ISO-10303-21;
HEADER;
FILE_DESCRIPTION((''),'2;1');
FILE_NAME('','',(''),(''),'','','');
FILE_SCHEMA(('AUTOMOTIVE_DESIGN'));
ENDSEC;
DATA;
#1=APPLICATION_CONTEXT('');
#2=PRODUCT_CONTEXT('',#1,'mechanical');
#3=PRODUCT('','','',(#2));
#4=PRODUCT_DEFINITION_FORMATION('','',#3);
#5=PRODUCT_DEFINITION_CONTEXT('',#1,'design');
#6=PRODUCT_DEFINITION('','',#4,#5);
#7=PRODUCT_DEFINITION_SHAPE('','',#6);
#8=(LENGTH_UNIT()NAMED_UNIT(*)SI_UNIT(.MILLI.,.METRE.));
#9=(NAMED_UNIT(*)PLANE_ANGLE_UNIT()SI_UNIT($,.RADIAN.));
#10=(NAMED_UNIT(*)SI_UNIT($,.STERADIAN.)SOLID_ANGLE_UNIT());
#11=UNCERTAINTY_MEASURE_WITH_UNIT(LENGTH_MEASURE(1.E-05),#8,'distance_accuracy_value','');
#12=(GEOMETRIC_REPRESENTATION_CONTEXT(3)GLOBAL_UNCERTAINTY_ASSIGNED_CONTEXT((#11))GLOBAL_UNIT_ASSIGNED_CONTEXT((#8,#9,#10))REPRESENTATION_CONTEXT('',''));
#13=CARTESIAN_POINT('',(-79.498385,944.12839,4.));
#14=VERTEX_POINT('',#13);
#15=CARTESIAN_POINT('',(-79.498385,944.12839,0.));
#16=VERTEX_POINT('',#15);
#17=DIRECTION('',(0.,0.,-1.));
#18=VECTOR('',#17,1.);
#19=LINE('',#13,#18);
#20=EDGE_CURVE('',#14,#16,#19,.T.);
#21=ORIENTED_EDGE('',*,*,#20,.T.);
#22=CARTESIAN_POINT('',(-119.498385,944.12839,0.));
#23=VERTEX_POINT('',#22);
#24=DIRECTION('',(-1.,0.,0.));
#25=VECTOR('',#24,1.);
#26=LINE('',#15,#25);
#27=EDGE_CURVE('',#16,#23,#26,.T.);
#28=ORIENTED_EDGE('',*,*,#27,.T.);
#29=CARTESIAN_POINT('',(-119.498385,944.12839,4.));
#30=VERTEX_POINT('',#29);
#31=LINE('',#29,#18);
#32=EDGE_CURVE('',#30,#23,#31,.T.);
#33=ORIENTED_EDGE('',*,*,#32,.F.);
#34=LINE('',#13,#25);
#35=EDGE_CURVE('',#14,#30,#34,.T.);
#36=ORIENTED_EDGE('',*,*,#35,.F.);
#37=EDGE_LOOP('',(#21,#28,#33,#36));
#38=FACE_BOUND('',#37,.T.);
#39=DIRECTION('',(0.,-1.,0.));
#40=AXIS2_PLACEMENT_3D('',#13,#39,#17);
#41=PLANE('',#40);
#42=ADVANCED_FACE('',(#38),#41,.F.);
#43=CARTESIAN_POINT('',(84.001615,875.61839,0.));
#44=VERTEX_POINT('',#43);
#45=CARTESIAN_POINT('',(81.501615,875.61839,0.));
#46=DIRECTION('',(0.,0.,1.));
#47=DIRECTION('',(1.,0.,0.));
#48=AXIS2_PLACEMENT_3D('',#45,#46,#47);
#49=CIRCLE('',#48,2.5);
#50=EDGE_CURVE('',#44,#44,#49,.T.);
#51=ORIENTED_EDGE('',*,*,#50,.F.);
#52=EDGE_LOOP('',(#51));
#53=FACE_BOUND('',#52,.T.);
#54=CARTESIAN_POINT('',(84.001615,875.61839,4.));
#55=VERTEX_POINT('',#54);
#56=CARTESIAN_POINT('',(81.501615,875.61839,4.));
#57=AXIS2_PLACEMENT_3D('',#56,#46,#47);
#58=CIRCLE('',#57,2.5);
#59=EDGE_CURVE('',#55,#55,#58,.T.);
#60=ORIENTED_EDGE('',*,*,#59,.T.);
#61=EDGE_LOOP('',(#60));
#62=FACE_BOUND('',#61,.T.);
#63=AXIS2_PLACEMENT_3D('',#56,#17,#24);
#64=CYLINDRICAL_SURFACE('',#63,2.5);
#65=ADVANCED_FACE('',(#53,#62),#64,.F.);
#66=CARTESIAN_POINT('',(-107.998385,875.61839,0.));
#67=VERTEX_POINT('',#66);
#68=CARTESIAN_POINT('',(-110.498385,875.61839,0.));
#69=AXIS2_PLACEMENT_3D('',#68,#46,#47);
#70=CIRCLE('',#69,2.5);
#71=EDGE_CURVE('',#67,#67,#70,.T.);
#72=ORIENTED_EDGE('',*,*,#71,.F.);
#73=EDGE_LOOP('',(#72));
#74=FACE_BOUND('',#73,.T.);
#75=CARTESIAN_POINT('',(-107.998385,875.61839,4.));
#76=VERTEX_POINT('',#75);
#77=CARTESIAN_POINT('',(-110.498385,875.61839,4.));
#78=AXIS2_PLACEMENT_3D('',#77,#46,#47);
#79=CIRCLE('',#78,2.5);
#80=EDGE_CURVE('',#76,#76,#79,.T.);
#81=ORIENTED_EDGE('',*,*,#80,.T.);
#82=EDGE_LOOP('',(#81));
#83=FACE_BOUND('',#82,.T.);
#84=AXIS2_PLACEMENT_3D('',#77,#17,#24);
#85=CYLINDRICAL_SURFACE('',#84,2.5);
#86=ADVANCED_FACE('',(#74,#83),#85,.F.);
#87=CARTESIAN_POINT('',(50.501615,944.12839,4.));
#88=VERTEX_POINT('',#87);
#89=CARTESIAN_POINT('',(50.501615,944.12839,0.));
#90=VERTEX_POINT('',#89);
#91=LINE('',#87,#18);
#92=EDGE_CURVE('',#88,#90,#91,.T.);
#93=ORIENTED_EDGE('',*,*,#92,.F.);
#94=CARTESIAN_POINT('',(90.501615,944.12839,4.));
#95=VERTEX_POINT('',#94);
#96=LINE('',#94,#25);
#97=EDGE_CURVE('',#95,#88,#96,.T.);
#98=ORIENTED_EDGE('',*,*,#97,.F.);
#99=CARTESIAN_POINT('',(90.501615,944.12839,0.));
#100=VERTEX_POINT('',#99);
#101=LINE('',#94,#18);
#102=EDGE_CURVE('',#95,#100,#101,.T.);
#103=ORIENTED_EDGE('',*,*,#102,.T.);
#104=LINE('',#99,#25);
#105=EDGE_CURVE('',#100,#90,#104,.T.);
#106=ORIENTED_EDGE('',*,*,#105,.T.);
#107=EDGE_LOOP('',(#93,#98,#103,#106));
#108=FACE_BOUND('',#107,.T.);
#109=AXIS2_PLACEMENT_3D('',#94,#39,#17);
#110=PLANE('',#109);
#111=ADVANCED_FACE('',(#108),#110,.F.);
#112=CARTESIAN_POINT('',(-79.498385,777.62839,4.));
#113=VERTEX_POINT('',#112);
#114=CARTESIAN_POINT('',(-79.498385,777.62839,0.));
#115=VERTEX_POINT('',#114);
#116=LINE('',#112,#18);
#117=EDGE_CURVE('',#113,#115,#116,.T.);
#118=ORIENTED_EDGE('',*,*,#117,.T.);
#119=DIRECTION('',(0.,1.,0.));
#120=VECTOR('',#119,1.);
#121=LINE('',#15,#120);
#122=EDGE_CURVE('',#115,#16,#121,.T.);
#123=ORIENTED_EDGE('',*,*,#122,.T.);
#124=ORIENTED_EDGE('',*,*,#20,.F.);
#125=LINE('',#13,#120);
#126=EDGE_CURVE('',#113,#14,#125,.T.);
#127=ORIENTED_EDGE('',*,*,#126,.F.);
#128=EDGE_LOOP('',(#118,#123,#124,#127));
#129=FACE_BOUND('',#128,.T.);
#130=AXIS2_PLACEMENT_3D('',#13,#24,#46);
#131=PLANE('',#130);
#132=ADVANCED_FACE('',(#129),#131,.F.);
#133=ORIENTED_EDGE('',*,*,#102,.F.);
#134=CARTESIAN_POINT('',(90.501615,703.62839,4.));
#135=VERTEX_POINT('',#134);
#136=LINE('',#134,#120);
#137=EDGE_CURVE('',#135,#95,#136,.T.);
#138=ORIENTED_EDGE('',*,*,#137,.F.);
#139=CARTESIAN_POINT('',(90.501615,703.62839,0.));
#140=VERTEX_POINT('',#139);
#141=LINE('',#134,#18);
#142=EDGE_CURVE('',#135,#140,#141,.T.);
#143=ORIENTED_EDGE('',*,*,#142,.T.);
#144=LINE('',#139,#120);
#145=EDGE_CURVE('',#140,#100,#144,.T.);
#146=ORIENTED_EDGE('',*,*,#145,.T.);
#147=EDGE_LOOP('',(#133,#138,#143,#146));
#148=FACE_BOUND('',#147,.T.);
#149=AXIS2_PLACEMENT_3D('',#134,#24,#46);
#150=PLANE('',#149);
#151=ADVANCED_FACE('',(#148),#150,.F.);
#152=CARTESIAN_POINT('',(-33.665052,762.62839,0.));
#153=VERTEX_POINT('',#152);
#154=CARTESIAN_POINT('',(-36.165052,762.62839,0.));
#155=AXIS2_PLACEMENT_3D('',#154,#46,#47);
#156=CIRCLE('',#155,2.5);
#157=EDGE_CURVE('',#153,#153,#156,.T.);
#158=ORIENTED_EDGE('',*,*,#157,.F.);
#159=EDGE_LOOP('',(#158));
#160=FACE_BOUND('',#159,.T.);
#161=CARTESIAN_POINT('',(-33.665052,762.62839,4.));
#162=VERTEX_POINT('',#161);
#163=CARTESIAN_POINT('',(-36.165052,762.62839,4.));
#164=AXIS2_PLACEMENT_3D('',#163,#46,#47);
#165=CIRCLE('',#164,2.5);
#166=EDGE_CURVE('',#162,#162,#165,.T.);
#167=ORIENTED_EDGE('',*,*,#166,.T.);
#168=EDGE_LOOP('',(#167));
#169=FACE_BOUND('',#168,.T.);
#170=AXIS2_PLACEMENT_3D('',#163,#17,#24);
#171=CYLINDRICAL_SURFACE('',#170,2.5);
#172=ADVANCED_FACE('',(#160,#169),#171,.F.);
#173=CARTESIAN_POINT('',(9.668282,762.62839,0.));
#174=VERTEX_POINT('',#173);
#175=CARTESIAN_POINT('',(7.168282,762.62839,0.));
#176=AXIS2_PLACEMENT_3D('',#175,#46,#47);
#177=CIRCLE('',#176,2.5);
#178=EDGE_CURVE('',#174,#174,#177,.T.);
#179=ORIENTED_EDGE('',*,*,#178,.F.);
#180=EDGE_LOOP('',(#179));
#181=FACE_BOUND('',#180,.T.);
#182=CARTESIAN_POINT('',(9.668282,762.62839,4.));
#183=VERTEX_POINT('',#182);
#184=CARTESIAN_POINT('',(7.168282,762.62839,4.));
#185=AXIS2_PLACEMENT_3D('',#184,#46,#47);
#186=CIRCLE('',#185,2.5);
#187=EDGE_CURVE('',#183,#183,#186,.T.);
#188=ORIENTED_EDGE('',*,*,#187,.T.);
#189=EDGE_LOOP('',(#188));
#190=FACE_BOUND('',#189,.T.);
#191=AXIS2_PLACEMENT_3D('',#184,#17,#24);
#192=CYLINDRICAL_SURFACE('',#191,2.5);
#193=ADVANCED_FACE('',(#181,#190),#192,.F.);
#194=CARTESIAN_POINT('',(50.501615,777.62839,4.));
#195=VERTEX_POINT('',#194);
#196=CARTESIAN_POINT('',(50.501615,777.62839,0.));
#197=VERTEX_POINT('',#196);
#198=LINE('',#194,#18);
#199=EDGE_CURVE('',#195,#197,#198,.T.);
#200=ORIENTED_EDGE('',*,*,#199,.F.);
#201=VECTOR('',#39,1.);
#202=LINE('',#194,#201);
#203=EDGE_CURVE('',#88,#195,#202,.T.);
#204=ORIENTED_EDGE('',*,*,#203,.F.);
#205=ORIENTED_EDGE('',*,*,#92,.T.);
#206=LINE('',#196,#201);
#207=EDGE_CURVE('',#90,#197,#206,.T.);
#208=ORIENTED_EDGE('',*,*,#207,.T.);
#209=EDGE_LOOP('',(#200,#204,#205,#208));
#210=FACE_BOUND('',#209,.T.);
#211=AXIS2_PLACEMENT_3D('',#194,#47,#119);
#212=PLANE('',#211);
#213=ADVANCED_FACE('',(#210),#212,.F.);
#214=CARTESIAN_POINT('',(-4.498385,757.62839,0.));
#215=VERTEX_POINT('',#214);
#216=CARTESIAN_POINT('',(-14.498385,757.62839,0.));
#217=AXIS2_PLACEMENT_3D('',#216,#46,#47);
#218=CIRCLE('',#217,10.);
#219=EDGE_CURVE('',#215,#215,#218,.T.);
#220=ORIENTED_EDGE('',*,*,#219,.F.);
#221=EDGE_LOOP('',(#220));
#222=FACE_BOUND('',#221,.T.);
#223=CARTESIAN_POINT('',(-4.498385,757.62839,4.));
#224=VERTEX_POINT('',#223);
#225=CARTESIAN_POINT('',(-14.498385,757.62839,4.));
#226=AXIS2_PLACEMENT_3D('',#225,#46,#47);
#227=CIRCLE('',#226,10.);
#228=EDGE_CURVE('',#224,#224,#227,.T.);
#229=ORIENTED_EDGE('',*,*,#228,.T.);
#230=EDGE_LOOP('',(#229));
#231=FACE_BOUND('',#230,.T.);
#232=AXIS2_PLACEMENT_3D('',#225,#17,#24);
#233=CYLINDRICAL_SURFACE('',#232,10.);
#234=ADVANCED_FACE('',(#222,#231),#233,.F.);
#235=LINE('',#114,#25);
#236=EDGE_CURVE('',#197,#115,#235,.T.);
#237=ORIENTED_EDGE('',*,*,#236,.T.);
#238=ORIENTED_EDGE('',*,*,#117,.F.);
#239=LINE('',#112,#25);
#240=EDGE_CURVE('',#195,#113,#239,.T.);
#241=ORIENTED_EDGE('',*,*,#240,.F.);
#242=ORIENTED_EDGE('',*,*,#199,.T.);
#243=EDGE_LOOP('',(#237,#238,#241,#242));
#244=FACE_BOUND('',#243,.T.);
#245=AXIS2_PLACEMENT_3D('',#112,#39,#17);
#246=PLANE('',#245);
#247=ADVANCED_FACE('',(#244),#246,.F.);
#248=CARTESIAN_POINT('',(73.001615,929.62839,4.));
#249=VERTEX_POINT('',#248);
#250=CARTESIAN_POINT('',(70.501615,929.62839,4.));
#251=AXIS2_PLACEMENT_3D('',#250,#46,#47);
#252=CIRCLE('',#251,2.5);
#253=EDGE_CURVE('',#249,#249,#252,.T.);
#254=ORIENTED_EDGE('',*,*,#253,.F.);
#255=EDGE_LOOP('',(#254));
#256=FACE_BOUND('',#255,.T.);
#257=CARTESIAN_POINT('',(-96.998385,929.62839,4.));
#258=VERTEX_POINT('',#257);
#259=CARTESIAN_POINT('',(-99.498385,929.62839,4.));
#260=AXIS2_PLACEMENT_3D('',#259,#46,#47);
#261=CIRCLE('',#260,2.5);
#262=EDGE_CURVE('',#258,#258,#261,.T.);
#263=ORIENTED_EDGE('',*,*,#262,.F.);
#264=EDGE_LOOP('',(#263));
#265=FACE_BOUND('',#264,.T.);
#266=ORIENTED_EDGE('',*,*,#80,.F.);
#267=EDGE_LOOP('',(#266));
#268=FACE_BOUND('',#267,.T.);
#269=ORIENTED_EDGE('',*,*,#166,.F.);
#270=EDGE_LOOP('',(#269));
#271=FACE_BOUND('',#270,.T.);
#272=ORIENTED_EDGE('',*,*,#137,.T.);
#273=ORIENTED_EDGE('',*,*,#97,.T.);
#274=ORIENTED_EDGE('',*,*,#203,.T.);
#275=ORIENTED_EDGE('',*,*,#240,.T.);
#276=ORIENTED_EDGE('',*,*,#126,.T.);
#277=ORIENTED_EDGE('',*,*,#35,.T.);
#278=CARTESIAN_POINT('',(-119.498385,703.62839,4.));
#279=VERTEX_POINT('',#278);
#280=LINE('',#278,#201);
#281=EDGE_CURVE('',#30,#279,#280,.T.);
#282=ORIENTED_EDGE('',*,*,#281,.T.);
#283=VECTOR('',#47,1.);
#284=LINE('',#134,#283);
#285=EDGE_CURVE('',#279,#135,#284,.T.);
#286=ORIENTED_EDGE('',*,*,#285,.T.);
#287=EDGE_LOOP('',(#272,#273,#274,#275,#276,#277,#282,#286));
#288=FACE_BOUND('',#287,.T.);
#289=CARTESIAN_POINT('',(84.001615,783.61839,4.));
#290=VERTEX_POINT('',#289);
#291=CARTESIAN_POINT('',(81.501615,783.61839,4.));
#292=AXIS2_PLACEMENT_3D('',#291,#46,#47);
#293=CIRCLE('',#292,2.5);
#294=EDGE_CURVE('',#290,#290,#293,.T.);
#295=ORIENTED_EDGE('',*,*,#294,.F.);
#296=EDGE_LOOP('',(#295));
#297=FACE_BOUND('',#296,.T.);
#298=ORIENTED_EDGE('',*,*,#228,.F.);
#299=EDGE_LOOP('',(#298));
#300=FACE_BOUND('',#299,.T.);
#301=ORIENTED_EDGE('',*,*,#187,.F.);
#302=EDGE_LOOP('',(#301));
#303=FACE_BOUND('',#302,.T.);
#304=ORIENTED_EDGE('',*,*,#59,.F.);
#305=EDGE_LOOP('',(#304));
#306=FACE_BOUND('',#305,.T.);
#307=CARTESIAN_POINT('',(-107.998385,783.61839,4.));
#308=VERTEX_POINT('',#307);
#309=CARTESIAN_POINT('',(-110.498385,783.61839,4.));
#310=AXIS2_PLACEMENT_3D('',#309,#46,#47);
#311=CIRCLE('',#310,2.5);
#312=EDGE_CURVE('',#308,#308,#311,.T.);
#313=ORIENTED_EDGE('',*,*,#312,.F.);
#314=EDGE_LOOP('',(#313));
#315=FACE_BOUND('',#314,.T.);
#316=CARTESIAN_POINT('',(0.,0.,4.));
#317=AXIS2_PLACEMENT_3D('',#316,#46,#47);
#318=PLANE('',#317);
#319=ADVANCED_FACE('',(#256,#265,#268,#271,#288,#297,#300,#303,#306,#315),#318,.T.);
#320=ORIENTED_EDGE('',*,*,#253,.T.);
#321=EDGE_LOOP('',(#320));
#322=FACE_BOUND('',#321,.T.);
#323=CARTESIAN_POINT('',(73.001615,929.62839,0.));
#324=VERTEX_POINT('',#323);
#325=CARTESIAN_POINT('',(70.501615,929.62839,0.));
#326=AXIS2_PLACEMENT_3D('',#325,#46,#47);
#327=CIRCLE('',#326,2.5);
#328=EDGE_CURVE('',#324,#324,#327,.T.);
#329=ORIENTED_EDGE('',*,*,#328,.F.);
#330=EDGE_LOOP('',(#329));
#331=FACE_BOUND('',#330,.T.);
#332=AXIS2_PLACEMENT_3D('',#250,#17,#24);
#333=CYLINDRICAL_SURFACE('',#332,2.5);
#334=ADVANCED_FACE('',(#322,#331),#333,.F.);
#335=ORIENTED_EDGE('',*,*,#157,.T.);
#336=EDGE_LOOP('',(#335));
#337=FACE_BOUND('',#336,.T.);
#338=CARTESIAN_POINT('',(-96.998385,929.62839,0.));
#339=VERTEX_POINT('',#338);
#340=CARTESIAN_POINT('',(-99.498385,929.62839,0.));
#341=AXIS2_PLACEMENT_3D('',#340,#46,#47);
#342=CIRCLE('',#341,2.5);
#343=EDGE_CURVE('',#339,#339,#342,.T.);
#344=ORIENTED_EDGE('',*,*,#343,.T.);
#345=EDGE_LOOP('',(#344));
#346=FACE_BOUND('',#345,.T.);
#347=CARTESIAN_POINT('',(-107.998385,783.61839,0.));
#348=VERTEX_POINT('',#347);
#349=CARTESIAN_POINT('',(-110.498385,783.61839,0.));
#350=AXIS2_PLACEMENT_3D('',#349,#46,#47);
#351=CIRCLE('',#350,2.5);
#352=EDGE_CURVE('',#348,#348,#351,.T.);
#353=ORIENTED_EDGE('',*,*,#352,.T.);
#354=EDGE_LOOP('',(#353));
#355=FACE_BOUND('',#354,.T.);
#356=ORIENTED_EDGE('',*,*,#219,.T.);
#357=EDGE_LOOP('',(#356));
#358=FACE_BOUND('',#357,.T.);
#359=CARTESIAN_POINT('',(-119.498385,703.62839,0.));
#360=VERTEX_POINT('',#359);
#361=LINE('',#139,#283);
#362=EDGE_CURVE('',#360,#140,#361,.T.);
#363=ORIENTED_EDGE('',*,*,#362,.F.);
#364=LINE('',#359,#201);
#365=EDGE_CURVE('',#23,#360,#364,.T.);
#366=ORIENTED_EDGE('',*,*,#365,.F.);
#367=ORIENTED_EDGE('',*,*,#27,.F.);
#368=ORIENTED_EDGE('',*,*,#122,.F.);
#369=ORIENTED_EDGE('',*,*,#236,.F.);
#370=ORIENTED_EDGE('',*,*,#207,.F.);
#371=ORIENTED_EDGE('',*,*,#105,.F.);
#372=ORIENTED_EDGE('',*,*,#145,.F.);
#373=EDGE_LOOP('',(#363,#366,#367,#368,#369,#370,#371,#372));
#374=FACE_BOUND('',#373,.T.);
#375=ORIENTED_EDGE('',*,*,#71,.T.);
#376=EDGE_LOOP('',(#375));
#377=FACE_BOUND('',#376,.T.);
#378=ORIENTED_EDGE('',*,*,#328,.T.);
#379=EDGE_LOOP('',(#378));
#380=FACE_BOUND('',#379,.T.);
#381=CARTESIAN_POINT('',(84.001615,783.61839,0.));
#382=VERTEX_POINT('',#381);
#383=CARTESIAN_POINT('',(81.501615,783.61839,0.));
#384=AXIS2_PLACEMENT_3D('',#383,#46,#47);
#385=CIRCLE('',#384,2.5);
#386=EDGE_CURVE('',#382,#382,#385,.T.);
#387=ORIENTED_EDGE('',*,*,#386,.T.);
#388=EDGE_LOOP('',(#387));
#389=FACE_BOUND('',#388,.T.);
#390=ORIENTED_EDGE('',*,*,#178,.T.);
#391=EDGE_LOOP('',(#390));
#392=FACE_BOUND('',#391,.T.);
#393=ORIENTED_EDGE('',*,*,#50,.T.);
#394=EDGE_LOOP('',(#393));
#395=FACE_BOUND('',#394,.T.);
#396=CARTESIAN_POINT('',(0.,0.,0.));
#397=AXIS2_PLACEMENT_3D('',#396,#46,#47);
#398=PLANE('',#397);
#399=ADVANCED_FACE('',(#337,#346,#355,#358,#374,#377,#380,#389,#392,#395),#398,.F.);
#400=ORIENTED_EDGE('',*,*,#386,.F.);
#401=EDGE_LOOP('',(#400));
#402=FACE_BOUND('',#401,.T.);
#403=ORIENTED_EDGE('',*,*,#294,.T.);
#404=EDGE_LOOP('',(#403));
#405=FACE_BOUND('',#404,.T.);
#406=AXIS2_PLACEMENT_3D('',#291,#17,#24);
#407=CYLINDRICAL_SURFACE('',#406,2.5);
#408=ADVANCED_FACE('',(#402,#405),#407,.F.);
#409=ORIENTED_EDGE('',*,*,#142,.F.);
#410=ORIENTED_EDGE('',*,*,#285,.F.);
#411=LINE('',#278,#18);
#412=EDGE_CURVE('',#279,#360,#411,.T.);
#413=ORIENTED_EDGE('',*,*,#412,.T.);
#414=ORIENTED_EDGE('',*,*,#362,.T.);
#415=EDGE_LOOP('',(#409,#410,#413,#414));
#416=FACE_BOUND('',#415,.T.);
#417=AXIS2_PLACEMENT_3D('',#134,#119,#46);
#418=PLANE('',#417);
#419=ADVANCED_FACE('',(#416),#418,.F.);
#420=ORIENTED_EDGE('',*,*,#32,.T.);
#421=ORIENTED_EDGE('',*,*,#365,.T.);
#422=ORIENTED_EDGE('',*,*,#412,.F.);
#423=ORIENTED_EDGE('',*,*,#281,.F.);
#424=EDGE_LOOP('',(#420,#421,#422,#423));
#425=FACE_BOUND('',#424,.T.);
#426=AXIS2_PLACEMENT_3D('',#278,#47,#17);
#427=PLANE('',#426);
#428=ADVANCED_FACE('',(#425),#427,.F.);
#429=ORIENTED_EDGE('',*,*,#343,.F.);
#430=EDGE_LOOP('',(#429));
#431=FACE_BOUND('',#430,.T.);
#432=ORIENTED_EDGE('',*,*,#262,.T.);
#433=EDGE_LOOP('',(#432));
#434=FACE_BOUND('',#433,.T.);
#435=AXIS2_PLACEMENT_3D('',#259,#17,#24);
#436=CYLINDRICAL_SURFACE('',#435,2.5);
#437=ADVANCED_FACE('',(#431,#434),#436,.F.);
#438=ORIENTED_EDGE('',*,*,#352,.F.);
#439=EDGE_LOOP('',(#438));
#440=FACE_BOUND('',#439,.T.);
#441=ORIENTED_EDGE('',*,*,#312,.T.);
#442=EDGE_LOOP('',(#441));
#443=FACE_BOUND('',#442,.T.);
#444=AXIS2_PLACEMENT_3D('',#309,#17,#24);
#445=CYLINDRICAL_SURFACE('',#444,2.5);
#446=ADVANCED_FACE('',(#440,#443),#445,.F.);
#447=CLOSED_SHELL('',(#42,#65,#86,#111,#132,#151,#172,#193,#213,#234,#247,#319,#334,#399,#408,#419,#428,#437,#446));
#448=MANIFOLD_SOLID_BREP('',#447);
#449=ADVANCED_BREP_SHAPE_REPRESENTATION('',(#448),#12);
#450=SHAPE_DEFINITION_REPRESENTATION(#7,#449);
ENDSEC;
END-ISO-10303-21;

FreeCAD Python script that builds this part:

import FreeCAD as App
import Part
import Sketcher
Q = App.Units.Quantity


def add_polygon(sketch, points):
    """Adds a closed chain of lines whose ends are joined by coincident constraints."""
    first, n = sketch.GeometryCount, len(points)
    for a, b in zip(points, points[1:] + points[:1]):
        sketch.addGeometry(Part.LineSegment(App.Vector(*a, 0), App.Vector(*b, 0)), False)
    for i in range(n):
        sketch.addConstraint(Sketcher.Constraint("Coincident", first + i, 2, first + (i + 1) % n, 1))

doc = App.newDocument("Part")
body = doc.addObject("PartDesign::Body", "Body")

# Sketch on XY plane
sketch1 = body.newObject("Sketcher::SketchObject", "Sketch")
sketch1.AttachmentSupport = (doc.getObject("XY_Plane"), [""])
sketch1.MapMode = "FlatFace"
add_polygon(sketch1, [(-79.5, 777.6), (-79.5, 944.1), (-119.5, 944.1), (-119.5, 703.6), (90.5, 703.6), (90.5, 944.1), (50.5, 944.1), (50.5, 777.6)])  # lines 0-7
sketch1.addGeometry(Part.Circle(App.Vector(81.5, 783.6, 0), App.Vector(0, 0, 1), 2.5), False)  # 8
sketch1.addGeometry(Part.Circle(App.Vector(-14.5, 757.6, 0), App.Vector(0, 0, 1), 10), False)  # 9
sketch1.addGeometry(Part.Circle(App.Vector(7.2, 762.6, 0), App.Vector(0, 0, 1), 2.5), False)  # 10
sketch1.addGeometry(Part.Circle(App.Vector(-36.2, 762.6, 0), App.Vector(0, 0, 1), 2.5), False)  # 11
sketch1.addGeometry(Part.Circle(App.Vector(-110.5, 783.6, 0), App.Vector(0, 0, 1), 2.5), False)  # 12
sketch1.addGeometry(Part.Circle(App.Vector(81.5, 875.6, 0), App.Vector(0, 0, 1), 2.5), False)  # 13
sketch1.addGeometry(Part.Circle(App.Vector(70.5, 929.6, 0), App.Vector(0, 0, 1), 2.5), False)  # 14
sketch1.addGeometry(Part.Circle(App.Vector(-110.5, 875.6, 0), App.Vector(0, 0, 1), 2.5), False)  # 15
sketch1.addGeometry(Part.Circle(App.Vector(-99.5, 929.6, 0), App.Vector(0, 0, 1), 2.5), False)  # 16
sketch1.addConstraint([
    Sketcher.Constraint("Vertical", 0),
    Sketcher.Constraint("Horizontal", 1),
    Sketcher.Constraint("Vertical", 2),
    Sketcher.Constraint("Horizontal", 3),
    Sketcher.Constraint("Vertical", 4),
    Sketcher.Constraint("Horizontal", 5),
    Sketcher.Constraint("Vertical", 6),
    Sketcher.Constraint("Horizontal", 7),
    Sketcher.Constraint("Equal", 8, 10),
    Sketcher.Constraint("Equal", 10, 11),
    Sketcher.Constraint("Equal", 11, 12),
    Sketcher.Constraint("Equal", 12, 13),
    Sketcher.Constraint("Equal", 13, 14),
    Sketcher.Constraint("Equal", 14, 15),
    Sketcher.Constraint("Equal", 15, 16),
    Sketcher.Constraint("Horizontal", 10, 3, 11, 3),
    Sketcher.Constraint("Horizontal", 8, 3, 12, 3),
    Sketcher.Constraint("Horizontal", 13, 3, 15, 3),
    Sketcher.Constraint("Horizontal", 14, 3, 16, 3),
    Sketcher.Constraint("Horizontal", 1, 2, 4, 2),
    Sketcher.Constraint("Vertical", 8, 3, 13, 3),
    Sketcher.Constraint("Vertical", 12, 3, 15, 3),
    Sketcher.Constraint("Equal", 1, 5),
    Sketcher.Constraint("Diameter", 8, Q("5 mm")),
    Sketcher.Constraint("Diameter", 9, Q("20 mm")),
    Sketcher.Constraint("DistanceX", 1, 2, 1, 1, Q("40 mm")),
    Sketcher.Constraint("DistanceX", 3, 1, 3, 2, Q("210 mm")),
    Sketcher.Constraint("DistanceY", 0, 1, 0, 2, Q("166.5 mm")),
    Sketcher.Constraint("DistanceY", 2, 2, 2, 1, Q("240.5 mm")),
    Sketcher.Constraint("DistanceX", 9, 3, 8, 3, Q("96 mm")),
    Sketcher.Constraint("DistanceY", 9, 3, 10, 3, Q("5 mm")),
    Sketcher.Constraint("DistanceX", 12, 3, 9, 3, Q("96 mm")),
    Sketcher.Constraint("DistanceY", 8, 3, 13, 3, Q("92 mm")),
    Sketcher.Constraint("DistanceX", 14, 3, 13, 3, Q("11 mm")),
    Sketcher.Constraint("DistanceY", 10, 3, 14, 3, Q("167 mm")),
    Sketcher.Constraint("DistanceX", 15, 3, 16, 3, Q("11 mm")),
    Sketcher.Constraint("DistanceX", 16, 3, 0, 2, Q("20 mm")),
    Sketcher.Constraint("DistanceY", 2, 2, 11, 3, Q("59 mm")),
    Sketcher.Constraint("DistanceY", 9, 3, 8, 3, Q("25.99 mm")),
    Sketcher.Constraint("DistanceY", -1, 1, 8, 3, Q("783.61839 mm")),
    Sketcher.Constraint("DistanceX", -1, 1, 10, 3, Q("7.168282 mm")),
    Sketcher.Constraint("DistanceX", 11, 3, -1, 1, Q("36.165052 mm")),
    Sketcher.Constraint("DistanceX", -1, 1, 8, 3, Q("81.501615 mm")),
])
pad1 = body.newObject("PartDesign::Pad", "Pad")
pad1.Profile = sketch1
pad1.Length = 4

doc.recompute()
